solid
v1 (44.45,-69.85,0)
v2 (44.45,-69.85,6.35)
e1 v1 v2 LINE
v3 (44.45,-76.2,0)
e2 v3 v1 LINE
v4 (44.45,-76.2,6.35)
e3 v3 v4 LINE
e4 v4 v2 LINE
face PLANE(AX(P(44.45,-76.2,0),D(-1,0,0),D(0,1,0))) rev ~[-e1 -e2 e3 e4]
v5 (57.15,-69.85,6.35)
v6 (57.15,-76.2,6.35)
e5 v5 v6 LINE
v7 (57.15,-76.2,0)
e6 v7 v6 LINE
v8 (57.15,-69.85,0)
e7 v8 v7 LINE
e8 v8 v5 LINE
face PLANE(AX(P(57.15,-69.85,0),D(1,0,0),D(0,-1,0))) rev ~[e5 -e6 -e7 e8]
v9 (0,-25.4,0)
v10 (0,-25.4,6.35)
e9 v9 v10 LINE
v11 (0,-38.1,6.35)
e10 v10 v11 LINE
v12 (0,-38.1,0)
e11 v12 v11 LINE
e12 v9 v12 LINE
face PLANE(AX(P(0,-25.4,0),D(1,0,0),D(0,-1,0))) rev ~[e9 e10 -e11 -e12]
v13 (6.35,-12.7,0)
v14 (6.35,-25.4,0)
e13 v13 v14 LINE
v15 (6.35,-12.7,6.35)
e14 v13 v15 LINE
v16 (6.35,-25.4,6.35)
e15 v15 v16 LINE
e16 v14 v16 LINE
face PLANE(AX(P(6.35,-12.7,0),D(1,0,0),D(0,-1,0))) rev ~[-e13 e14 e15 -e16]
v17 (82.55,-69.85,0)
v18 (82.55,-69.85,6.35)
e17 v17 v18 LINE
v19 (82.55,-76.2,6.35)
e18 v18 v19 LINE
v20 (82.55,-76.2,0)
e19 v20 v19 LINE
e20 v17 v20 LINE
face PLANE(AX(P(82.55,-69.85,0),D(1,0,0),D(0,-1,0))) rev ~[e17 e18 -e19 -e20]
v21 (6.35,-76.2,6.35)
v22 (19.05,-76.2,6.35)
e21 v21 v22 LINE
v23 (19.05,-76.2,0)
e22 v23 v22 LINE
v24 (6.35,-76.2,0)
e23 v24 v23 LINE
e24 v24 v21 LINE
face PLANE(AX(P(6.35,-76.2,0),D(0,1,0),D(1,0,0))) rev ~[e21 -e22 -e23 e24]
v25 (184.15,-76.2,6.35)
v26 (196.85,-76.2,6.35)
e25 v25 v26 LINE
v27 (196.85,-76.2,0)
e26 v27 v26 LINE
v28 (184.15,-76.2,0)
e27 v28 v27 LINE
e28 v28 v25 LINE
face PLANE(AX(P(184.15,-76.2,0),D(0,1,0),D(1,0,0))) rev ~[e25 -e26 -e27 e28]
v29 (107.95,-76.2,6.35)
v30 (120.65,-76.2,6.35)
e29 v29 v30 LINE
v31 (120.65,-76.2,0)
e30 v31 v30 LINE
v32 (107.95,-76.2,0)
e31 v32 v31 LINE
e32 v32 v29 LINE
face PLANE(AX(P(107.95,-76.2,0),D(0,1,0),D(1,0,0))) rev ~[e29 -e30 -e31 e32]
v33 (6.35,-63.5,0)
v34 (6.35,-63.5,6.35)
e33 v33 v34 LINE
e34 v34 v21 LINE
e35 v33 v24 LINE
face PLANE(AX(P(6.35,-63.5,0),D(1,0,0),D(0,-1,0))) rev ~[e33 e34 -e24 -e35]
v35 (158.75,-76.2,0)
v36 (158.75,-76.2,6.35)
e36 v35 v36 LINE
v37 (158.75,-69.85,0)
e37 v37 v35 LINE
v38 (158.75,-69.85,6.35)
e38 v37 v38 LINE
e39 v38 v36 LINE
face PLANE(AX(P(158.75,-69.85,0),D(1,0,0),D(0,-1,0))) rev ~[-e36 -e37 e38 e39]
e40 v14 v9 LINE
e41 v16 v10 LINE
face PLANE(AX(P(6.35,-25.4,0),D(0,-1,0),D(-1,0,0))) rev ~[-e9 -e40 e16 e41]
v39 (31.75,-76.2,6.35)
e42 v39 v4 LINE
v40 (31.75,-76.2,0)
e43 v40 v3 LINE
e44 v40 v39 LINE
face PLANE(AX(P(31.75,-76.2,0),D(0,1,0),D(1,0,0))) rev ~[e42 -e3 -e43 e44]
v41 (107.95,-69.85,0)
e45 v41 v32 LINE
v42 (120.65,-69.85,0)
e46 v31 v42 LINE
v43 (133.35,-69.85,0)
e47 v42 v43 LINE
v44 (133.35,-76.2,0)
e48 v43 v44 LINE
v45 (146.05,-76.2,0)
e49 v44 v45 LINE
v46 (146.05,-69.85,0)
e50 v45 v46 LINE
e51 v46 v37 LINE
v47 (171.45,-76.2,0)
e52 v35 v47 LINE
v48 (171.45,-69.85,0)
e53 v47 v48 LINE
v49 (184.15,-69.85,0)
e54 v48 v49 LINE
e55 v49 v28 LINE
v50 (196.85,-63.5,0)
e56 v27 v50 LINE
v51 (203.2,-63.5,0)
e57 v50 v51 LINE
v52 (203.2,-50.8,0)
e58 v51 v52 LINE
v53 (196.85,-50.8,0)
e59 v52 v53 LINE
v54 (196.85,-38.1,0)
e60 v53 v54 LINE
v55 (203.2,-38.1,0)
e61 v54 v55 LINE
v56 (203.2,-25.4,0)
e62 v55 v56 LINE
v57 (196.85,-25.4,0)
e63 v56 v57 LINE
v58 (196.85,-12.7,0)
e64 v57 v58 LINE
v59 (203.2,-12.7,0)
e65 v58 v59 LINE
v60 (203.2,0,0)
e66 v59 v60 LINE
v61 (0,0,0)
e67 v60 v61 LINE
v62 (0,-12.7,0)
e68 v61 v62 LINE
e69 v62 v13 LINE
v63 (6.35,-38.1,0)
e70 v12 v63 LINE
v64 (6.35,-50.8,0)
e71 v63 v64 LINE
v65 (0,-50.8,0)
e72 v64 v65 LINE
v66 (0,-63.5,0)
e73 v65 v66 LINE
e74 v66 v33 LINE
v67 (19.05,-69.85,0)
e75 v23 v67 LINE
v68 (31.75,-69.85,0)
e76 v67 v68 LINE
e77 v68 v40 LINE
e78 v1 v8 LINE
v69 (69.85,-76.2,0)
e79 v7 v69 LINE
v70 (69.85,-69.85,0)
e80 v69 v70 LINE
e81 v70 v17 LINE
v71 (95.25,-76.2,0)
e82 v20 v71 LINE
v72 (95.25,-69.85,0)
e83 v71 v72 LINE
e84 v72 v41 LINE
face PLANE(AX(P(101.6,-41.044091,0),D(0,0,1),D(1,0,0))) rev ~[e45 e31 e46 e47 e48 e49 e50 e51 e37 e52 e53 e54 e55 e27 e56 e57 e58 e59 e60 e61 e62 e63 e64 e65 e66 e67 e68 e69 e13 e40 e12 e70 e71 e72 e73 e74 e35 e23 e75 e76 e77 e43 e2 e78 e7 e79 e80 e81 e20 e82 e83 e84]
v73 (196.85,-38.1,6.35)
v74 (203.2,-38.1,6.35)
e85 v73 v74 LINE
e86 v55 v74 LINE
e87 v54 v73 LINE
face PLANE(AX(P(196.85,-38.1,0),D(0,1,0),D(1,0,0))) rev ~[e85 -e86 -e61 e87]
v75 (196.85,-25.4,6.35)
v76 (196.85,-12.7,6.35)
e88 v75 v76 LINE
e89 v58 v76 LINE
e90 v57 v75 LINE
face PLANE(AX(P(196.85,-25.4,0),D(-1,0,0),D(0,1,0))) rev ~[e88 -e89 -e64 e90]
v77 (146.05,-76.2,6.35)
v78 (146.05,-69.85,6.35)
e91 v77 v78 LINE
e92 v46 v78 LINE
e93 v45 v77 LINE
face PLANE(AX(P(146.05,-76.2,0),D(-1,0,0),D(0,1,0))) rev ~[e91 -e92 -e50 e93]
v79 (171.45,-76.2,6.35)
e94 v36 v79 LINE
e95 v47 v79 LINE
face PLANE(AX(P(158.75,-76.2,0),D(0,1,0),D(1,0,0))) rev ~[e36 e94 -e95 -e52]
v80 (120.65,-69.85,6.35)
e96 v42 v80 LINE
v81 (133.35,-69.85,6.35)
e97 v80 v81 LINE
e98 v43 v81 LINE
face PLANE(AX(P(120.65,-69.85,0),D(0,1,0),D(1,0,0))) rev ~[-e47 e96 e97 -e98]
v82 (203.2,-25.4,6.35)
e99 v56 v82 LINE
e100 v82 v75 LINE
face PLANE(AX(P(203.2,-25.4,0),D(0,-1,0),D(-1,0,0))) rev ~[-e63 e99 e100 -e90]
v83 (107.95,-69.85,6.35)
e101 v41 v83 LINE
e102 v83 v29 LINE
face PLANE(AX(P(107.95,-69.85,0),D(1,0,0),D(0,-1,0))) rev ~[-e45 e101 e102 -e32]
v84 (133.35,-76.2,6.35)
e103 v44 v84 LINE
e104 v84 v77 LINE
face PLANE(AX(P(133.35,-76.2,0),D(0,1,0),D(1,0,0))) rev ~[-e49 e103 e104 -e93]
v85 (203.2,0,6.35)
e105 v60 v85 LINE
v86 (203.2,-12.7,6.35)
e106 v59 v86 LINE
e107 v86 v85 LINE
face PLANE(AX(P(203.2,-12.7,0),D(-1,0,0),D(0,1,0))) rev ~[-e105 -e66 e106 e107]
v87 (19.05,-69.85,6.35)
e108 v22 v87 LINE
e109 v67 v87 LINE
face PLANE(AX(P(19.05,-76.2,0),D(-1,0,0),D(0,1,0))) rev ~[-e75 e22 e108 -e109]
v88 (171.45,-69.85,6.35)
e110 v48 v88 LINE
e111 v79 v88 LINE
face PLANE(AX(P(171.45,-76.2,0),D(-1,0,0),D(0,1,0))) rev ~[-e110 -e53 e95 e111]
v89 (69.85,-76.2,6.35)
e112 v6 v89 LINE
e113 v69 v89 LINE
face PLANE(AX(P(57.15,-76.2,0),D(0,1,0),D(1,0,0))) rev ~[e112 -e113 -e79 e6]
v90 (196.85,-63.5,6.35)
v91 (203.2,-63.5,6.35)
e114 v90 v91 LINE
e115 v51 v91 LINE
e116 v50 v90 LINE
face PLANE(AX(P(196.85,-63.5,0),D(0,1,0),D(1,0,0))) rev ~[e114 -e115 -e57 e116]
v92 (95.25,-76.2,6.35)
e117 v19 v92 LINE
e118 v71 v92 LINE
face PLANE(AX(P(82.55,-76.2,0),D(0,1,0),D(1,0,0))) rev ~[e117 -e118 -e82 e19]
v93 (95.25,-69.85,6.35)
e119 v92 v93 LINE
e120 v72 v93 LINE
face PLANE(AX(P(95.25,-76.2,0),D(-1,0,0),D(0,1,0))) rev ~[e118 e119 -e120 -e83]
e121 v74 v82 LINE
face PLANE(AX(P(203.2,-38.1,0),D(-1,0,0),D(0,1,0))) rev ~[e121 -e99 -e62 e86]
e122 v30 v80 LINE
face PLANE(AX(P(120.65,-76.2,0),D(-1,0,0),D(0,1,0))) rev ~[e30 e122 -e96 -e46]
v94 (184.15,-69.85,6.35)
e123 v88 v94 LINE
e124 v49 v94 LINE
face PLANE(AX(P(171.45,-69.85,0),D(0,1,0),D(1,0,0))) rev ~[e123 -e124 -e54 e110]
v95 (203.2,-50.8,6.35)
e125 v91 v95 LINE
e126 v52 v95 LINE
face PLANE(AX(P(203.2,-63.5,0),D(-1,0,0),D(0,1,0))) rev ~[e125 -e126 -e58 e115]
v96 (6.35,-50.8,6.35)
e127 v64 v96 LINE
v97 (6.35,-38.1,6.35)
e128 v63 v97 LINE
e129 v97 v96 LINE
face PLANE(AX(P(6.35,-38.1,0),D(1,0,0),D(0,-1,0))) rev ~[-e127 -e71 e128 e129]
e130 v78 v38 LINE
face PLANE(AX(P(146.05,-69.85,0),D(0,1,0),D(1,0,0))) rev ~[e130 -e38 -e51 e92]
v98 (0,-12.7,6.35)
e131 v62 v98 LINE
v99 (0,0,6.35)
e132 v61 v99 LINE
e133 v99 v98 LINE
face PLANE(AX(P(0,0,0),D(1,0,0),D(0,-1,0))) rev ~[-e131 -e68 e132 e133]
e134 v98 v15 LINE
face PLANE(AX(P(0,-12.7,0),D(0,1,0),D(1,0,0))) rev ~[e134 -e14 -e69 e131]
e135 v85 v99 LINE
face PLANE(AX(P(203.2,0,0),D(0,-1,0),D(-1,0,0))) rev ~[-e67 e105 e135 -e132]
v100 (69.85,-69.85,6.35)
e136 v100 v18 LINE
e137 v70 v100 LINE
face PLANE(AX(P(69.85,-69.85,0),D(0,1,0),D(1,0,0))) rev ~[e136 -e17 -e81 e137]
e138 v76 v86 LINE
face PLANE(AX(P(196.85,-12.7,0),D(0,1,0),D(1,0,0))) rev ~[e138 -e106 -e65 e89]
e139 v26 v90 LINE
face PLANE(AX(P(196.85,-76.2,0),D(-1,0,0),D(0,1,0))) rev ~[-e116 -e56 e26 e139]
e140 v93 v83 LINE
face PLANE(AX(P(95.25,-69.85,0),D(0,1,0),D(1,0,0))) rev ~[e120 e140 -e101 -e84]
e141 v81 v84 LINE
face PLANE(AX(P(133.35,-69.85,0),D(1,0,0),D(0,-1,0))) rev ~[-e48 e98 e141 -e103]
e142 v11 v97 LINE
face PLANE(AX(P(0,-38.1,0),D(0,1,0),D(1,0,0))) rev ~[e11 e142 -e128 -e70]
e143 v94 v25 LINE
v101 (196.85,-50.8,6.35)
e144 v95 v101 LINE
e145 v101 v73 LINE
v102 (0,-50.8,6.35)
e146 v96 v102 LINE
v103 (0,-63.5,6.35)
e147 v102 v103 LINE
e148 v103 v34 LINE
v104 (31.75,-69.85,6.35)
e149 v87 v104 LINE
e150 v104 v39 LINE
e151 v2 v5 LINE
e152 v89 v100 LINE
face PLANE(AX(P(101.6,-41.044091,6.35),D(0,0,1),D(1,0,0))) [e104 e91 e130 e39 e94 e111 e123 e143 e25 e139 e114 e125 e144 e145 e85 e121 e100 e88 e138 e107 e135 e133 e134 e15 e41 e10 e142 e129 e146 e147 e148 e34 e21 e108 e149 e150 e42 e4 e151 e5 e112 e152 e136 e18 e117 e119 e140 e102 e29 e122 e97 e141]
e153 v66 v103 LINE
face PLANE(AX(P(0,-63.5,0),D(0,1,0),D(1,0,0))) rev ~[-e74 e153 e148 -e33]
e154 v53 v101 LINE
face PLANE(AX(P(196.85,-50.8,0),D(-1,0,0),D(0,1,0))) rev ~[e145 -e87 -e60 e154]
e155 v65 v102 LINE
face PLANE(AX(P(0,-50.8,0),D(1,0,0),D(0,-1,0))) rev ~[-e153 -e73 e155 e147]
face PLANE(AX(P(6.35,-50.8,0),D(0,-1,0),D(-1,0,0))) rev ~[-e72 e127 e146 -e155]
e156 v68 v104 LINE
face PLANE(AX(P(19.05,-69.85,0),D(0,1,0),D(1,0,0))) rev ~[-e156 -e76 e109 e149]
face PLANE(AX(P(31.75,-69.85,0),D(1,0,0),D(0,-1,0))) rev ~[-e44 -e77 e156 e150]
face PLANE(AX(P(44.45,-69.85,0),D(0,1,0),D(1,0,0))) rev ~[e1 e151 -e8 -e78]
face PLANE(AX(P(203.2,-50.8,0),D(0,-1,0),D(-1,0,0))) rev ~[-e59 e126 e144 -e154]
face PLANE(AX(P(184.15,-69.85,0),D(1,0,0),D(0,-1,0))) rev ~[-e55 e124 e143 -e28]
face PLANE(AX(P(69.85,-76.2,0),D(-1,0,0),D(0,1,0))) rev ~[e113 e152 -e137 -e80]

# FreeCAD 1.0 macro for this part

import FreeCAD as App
import Part
import Sketcher

V = App.Vector
Q = App.Units.Quantity


def add_polygon(sketch, points):
    """Adds a closed chain of lines whose ends are joined by coincident constraints."""
    first, n = sketch.GeometryCount, len(points)
    for a, b in zip(points, points[1:] + points[:1]):
        sketch.addGeometry(Part.LineSegment(App.Vector(*a, 0), App.Vector(*b, 0)), False)
    for i in range(n):
        sketch.addConstraint(Sketcher.Constraint("Coincident", first + i, 2, first + (i + 1) % n, 1))

doc = App.newDocument("Part")
body = doc.addObject("PartDesign::Body", "Body")

# Sketch on XY plane
sketch1 = body.newObject("Sketcher::SketchObject", "Sketch")
sketch1.AttachmentSupport = (doc.getObject("XY_Plane"), [""])
sketch1.MapMode = "FlatFace"
add_polygon(sketch1, [(203, 0), (0, 0), (0, -13), (6, -13), (6, -25), (0, -25), (0, -38), (6, -38), (6, -51), (0, -51), (0, -64), (6, -64), (6, -76), (19, -76), (19, -70), (32, -70), (32, -76), (44, -76), (44, -70), (57, -70), (57, -76), (70, -76), (70, -70), (83, -70), (83, -76), (95, -76), (95, -70), (108, -70), (108, -76), (121, -76), (121, -70), (133, -70), (133, -76), (146, -76), (146, -70), (159, -70), (159, -76), (171, -76), (171, -70), (184, -70), (184, -76), (197, -76), (197, -64), (203, -64), (203, -51), (197, -51), (197, -38), (203, -38), (203, -25), (197, -25), (197, -13), (203, -13)])  # lines 0-51
sketch1.addConstraint([
    Sketcher.Constraint("Horizontal", 0),
    Sketcher.Constraint("Vertical", 1),
    Sketcher.Constraint("Horizontal", 2),
    Sketcher.Constraint("Vertical", 3),
    Sketcher.Constraint("Horizontal", 4),
    Sketcher.Constraint("Vertical", 5),
    Sketcher.Constraint("Horizontal", 6),
    Sketcher.Constraint("Vertical", 7),
    Sketcher.Constraint("Horizontal", 8),
    Sketcher.Constraint("Vertical", 9),
    Sketcher.Constraint("Horizontal", 10),
    Sketcher.Constraint("Vertical", 11),
    Sketcher.Constraint("Horizontal", 12),
    Sketcher.Constraint("Vertical", 13),
    Sketcher.Constraint("Horizontal", 14),
    Sketcher.Constraint("Vertical", 15),
    Sketcher.Constraint("Horizontal", 16),
    Sketcher.Constraint("Vertical", 17),
    Sketcher.Constraint("Horizontal", 18),
    Sketcher.Constraint("Vertical", 19),
    Sketcher.Constraint("Horizontal", 20),
    Sketcher.Constraint("Vertical", 21),
    Sketcher.Constraint("Horizontal", 22),
    Sketcher.Constraint("Vertical", 23),
    Sketcher.Constraint("Horizontal", 24),
    Sketcher.Constraint("Vertical", 25),
    Sketcher.Constraint("Horizontal", 26),
    Sketcher.Constraint("Vertical", 27),
    Sketcher.Constraint("Horizontal", 28),
    Sketcher.Constraint("Vertical", 29),
    Sketcher.Constraint("Horizontal", 30),
    Sketcher.Constraint("Vertical", 31),
    Sketcher.Constraint("Horizontal", 32),
    Sketcher.Constraint("Vertical", 33),
    Sketcher.Constraint("Horizontal", 34),
    Sketcher.Constraint("Vertical", 35),
    Sketcher.Constraint("Horizontal", 36),
    Sketcher.Constraint("Vertical", 37),
    Sketcher.Constraint("Horizontal", 38),
    Sketcher.Constraint("Vertical", 39),
    Sketcher.Constraint("Horizontal", 40),
    Sketcher.Constraint("Vertical", 41),
    Sketcher.Constraint("Horizontal", 42),
    Sketcher.Constraint("Vertical", 43),
    Sketcher.Constraint("Horizontal", 44),
    Sketcher.Constraint("Vertical", 45),
    Sketcher.Constraint("Horizontal", 46),
    Sketcher.Constraint("Vertical", 47),
    Sketcher.Constraint("Horizontal", 48),
    Sketcher.Constraint("Vertical", 49),
    Sketcher.Constraint("Horizontal", 50),
    Sketcher.Constraint("Vertical", 51),
    Sketcher.Constraint("Coincident", 0, 2, -1, 1),
    Sketcher.Constraint("PointOnObject", 4, 2, -2),
    Sketcher.Constraint("PointOnObject", 8, 2, -2),
    Sketcher.Constraint("Horizontal", 12, 2, 15, 2),
    Sketcher.Constraint("Horizontal", 14, 2, 17, 2),
    Sketcher.Constraint("Horizontal", 16, 2, 19, 2),
    Sketcher.Constraint("Horizontal", 18, 2, 21, 2),
    Sketcher.Constraint("Horizontal", 20, 2, 23, 2),
    Sketcher.Constraint("Horizontal", 22, 2, 25, 2),
    Sketcher.Constraint("Horizontal", 24, 2, 27, 2),
    Sketcher.Constraint("Horizontal", 26, 2, 29, 2),
    Sketcher.Constraint("Horizontal", 28, 2, 31, 2),
    Sketcher.Constraint("Horizontal", 30, 2, 33, 2),
    Sketcher.Constraint("Horizontal", 32, 2, 35, 2),
    Sketcher.Constraint("Horizontal", 34, 2, 37, 2),
    Sketcher.Constraint("Horizontal", 36, 2, 39, 2),
    Sketcher.Constraint("Horizontal", 10, 2, 41, 2),
    Sketcher.Constraint("Horizontal", 8, 2, 43, 2),
    Sketcher.Constraint("Horizontal", 6, 2, 45, 2),
    Sketcher.Constraint("Horizontal", 4, 2, 47, 2),
    Sketcher.Constraint("Horizontal", 2, 2, 49, 2),
    Sketcher.Constraint("Vertical", 3, 2, 6, 2),
    Sketcher.Constraint("Vertical", 7, 2, 10, 2),
    Sketcher.Constraint("Vertical", 41, 2, 44, 2),
    Sketcher.Constraint("Vertical", 43, 2, 46, 2),
    Sketcher.Constraint("Vertical", 45, 2, 48, 2),
    Sketcher.Constraint("Vertical", 47, 2, 50, 2),
    Sketcher.Constraint("Equal", 12, 14),
    Sketcher.Constraint("Equal", 14, 16),
    Sketcher.Constraint("Equal", 16, 18),
    Sketcher.Constraint("Equal", 18, 20),
    Sketcher.Constraint("Equal", 20, 22),
    Sketcher.Constraint("Equal", 22, 24),
    Sketcher.Constraint("Equal", 24, 26),
    Sketcher.Constraint("Equal", 26, 28),
    Sketcher.Constraint("Equal", 28, 30),
    Sketcher.Constraint("Equal", 30, 32),
    Sketcher.Constraint("Equal", 32, 34),
    Sketcher.Constraint("Equal", 34, 36),
    Sketcher.Constraint("Equal", 36, 38),
    Sketcher.Constraint("Equal", 38, 40),
    Sketcher.Constraint("Equal", 10, 42),
    Sketcher.Constraint("Equal", 40, 1),
    Sketcher.Constraint("Equal", 1, 3),
    Sketcher.Constraint("Equal", 3, 5),
    Sketcher.Constraint("Equal", 5, 7),
    Sketcher.Constraint("Equal", 7, 9),
    Sketcher.Constraint("Equal", 9, 11),
    Sketcher.Constraint("Equal", 50, 13),
    Sketcher.Constraint("DistanceX", 0, 2, 0, 1, Q("8 in")),
    Sketcher.Constraint("DistanceX", 12, 1, 12, 2, Q("0.5 in")),
])
pad1 = body.newObject("PartDesign::Pad", "Pad")
pad1.Profile = sketch1
pad1.Length = Q("0.25 in")

doc.recompute()
